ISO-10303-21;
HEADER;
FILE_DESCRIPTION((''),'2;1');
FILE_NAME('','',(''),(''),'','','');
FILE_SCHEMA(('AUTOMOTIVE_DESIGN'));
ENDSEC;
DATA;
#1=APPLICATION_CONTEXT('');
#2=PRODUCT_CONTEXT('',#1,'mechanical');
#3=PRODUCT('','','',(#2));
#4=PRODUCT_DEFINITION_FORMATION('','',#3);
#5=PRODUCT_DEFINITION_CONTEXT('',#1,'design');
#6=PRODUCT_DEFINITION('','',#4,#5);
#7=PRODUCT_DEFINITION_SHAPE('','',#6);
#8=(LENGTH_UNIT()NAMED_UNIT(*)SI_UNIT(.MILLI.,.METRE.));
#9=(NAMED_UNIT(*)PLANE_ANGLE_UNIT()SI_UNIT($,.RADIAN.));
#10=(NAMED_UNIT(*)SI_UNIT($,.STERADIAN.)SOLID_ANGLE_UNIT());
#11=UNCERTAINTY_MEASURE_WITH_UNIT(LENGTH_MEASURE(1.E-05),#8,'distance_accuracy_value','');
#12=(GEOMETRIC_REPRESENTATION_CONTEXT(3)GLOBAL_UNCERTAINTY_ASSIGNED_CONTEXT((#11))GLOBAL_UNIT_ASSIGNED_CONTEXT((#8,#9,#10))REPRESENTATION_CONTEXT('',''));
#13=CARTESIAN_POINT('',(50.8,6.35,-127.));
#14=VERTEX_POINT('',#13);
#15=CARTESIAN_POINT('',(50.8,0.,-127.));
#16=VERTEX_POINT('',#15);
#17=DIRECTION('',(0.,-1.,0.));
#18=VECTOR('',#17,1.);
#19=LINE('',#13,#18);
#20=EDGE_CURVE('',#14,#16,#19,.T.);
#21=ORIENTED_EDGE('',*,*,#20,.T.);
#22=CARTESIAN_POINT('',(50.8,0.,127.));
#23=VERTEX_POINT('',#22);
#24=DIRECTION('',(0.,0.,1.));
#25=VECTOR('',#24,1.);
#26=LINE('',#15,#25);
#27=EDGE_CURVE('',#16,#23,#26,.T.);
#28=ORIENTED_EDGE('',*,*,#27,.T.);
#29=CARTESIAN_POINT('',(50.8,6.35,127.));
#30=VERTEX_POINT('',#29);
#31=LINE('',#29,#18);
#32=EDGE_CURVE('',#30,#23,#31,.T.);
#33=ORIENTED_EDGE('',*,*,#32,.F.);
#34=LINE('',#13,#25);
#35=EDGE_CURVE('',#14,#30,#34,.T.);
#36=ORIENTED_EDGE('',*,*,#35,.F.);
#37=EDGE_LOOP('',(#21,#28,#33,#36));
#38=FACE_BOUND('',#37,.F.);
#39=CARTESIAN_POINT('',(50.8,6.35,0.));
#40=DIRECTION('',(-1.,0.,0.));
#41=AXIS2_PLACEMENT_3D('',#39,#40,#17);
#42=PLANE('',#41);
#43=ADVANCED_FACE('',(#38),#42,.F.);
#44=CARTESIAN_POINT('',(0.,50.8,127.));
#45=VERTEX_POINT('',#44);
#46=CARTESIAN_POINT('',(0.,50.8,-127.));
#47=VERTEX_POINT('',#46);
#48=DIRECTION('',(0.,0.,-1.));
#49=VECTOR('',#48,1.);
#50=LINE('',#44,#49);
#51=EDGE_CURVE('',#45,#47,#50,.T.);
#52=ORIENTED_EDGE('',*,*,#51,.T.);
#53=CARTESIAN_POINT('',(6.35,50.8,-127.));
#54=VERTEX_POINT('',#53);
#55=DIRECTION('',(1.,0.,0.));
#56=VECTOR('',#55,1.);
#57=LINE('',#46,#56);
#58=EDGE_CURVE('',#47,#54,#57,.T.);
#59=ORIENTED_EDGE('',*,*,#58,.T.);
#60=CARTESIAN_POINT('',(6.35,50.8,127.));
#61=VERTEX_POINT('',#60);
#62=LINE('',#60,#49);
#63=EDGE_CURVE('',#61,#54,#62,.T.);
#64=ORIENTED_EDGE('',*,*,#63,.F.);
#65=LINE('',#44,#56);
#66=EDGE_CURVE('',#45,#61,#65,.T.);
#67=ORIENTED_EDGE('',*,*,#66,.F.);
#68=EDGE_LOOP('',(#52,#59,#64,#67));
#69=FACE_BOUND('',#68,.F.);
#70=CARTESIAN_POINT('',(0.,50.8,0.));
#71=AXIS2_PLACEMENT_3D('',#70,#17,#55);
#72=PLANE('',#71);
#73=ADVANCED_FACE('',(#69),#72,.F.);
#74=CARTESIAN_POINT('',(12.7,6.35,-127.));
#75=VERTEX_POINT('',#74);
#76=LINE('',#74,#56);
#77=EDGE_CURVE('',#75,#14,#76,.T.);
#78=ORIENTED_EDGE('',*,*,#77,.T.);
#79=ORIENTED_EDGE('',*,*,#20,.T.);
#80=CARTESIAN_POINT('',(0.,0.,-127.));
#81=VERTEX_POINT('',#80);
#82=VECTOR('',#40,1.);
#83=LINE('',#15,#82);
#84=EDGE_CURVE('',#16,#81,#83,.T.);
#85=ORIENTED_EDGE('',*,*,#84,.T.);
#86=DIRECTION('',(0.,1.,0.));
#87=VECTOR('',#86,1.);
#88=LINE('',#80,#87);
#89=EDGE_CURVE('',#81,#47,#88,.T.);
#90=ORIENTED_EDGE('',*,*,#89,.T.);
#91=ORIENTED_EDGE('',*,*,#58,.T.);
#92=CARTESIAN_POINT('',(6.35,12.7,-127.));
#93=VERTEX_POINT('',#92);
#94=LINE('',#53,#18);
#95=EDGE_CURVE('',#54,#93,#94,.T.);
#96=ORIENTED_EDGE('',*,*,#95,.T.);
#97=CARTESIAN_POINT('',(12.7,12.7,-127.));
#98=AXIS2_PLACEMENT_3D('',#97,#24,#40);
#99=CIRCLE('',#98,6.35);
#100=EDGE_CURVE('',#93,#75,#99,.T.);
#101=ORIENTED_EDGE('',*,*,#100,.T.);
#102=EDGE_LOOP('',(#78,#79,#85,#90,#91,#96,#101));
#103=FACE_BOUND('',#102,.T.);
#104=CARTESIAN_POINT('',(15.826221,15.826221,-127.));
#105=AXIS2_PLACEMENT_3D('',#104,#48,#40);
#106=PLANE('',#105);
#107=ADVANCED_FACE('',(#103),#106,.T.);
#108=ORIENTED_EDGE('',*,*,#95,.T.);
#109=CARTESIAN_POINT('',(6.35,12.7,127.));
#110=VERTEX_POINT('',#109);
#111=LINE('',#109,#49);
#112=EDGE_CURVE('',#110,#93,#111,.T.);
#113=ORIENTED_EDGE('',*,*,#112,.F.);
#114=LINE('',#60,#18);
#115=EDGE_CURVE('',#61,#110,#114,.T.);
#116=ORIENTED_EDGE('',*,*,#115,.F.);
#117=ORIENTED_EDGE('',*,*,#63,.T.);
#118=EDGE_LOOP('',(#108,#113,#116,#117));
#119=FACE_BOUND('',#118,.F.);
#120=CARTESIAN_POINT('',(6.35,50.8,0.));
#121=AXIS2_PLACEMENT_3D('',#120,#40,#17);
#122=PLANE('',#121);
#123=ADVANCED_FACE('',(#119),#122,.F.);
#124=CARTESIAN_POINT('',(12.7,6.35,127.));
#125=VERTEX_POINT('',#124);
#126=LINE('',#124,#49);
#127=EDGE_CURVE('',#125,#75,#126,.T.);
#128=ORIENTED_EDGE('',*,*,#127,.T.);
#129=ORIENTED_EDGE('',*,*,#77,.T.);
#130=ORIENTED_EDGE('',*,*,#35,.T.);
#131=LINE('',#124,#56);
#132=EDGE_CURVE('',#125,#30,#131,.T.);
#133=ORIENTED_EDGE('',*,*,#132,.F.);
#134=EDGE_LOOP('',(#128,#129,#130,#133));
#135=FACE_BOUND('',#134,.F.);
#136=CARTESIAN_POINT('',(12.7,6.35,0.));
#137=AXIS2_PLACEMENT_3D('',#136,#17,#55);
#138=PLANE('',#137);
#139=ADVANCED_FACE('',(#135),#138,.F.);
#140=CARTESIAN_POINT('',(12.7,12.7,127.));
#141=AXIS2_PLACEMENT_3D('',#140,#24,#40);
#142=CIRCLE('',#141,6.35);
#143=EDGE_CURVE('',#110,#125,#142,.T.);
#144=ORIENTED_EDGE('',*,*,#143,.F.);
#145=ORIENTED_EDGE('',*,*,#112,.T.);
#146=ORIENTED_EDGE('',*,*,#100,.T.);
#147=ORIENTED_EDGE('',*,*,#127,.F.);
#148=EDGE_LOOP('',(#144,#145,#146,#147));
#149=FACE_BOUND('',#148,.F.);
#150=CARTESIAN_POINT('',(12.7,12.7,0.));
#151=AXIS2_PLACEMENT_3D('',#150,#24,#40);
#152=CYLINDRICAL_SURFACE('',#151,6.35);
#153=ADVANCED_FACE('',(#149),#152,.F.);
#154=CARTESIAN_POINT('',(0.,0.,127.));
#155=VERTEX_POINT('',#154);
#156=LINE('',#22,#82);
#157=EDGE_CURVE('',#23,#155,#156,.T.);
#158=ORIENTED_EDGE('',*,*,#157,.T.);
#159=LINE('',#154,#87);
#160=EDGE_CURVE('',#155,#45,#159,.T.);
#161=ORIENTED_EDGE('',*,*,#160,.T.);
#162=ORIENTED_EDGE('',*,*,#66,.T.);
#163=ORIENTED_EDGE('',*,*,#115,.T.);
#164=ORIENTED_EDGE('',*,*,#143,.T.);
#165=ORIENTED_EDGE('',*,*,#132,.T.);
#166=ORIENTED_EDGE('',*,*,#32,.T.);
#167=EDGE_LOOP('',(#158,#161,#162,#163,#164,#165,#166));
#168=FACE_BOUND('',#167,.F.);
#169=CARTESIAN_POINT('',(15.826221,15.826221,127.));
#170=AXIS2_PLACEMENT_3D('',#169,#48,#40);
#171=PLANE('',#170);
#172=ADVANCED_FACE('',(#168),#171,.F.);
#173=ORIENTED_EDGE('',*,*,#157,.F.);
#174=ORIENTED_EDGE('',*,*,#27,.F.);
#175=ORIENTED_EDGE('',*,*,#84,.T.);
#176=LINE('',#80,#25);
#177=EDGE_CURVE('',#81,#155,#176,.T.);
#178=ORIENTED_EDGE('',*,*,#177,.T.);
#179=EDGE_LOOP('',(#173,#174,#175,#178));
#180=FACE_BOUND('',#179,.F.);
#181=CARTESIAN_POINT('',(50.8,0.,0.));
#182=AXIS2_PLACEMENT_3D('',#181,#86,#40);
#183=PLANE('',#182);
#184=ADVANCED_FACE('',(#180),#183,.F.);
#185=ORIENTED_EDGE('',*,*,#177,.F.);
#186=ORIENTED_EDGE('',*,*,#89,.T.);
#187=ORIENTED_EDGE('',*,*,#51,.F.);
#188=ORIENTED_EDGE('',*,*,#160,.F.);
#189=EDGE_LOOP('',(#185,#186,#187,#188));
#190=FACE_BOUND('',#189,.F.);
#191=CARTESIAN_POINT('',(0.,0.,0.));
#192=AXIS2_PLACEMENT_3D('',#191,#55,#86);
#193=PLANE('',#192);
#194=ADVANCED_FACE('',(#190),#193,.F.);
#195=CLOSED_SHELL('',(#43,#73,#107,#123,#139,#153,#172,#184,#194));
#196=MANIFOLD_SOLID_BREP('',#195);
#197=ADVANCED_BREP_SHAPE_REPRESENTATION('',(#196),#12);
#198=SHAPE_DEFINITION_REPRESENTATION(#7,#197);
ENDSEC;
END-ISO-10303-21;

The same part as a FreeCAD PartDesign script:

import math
import FreeCAD as App
import Part
import Sketcher

V = App.Vector
Q = App.Units.Quantity

doc = App.newDocument("Part")
body = doc.addObject("PartDesign::Body", "Body")

sketch1 = body.newObject("Sketcher::SketchObject", "Sketch")
sketch1.AttachmentSupport = (doc.getObject("XY_Plane"), [""])
sketch1.MapMode = "FlatFace"
sketch1.addGeometry([
    Part.LineSegment(V(0, 51, 0), V(0, 0, 0)),
    Part.LineSegment(V(0, 0, 0), V(51, 0, 0)),
    Part.LineSegment(V(51, 0, 0), V(51, 6, 0)),
    Part.LineSegment(V(51, 6, 0), V(13, 6, 0)),
    Part.ArcOfCircle(Part.Circle(V(13, 13, 0), V(0, 0, 1), 6), math.radians(180), math.radians(270)),
    Part.LineSegment(V(6, 13, 0), V(6, 51, 0)),
    Part.LineSegment(V(6, 51, 0), V(0, 51, 0)),
], False)
sketch1.addConstraint([
    Sketcher.Constraint("Coincident", 0, 2, 1, 1),
    Sketcher.Constraint("Coincident", 1, 2, 2, 1),
    Sketcher.Constraint("Coincident", 2, 2, 3, 1),
    Sketcher.Constraint("Tangent", 3, 2, 4, 2),
    Sketcher.Constraint("Tangent", 4, 1, 5, 1),
    Sketcher.Constraint("Coincident", 5, 2, 6, 1),
    Sketcher.Constraint("Coincident", 6, 2, 0, 1),
    Sketcher.Constraint("Vertical", 0),
    Sketcher.Constraint("Horizontal", 1),
    Sketcher.Constraint("Vertical", 2),
    Sketcher.Constraint("Horizontal", 3),
    Sketcher.Constraint("Vertical", 5),
    Sketcher.Constraint("Horizontal", 6),
    Sketcher.Constraint("Coincident", 0, 2, -1, 1),
    Sketcher.Constraint("Equal", 1, 0),
    Sketcher.Constraint("Equal", 6, 2),
    Sketcher.Constraint("DistanceX", 1, 1, 1, 2, Q("2 in")),
    Sketcher.Constraint("Radius", 4, Q("0.25 in")),
    Sketcher.Constraint("DistanceX", 3, 2, 3, 1, Q("1.5 in")),
])
pad1 = body.newObject("PartDesign::Pad", "Pad")
pad1.Profile = sketch1
pad1.Length = Q("10 in")
pad1.Midplane = True

doc.recompute()
